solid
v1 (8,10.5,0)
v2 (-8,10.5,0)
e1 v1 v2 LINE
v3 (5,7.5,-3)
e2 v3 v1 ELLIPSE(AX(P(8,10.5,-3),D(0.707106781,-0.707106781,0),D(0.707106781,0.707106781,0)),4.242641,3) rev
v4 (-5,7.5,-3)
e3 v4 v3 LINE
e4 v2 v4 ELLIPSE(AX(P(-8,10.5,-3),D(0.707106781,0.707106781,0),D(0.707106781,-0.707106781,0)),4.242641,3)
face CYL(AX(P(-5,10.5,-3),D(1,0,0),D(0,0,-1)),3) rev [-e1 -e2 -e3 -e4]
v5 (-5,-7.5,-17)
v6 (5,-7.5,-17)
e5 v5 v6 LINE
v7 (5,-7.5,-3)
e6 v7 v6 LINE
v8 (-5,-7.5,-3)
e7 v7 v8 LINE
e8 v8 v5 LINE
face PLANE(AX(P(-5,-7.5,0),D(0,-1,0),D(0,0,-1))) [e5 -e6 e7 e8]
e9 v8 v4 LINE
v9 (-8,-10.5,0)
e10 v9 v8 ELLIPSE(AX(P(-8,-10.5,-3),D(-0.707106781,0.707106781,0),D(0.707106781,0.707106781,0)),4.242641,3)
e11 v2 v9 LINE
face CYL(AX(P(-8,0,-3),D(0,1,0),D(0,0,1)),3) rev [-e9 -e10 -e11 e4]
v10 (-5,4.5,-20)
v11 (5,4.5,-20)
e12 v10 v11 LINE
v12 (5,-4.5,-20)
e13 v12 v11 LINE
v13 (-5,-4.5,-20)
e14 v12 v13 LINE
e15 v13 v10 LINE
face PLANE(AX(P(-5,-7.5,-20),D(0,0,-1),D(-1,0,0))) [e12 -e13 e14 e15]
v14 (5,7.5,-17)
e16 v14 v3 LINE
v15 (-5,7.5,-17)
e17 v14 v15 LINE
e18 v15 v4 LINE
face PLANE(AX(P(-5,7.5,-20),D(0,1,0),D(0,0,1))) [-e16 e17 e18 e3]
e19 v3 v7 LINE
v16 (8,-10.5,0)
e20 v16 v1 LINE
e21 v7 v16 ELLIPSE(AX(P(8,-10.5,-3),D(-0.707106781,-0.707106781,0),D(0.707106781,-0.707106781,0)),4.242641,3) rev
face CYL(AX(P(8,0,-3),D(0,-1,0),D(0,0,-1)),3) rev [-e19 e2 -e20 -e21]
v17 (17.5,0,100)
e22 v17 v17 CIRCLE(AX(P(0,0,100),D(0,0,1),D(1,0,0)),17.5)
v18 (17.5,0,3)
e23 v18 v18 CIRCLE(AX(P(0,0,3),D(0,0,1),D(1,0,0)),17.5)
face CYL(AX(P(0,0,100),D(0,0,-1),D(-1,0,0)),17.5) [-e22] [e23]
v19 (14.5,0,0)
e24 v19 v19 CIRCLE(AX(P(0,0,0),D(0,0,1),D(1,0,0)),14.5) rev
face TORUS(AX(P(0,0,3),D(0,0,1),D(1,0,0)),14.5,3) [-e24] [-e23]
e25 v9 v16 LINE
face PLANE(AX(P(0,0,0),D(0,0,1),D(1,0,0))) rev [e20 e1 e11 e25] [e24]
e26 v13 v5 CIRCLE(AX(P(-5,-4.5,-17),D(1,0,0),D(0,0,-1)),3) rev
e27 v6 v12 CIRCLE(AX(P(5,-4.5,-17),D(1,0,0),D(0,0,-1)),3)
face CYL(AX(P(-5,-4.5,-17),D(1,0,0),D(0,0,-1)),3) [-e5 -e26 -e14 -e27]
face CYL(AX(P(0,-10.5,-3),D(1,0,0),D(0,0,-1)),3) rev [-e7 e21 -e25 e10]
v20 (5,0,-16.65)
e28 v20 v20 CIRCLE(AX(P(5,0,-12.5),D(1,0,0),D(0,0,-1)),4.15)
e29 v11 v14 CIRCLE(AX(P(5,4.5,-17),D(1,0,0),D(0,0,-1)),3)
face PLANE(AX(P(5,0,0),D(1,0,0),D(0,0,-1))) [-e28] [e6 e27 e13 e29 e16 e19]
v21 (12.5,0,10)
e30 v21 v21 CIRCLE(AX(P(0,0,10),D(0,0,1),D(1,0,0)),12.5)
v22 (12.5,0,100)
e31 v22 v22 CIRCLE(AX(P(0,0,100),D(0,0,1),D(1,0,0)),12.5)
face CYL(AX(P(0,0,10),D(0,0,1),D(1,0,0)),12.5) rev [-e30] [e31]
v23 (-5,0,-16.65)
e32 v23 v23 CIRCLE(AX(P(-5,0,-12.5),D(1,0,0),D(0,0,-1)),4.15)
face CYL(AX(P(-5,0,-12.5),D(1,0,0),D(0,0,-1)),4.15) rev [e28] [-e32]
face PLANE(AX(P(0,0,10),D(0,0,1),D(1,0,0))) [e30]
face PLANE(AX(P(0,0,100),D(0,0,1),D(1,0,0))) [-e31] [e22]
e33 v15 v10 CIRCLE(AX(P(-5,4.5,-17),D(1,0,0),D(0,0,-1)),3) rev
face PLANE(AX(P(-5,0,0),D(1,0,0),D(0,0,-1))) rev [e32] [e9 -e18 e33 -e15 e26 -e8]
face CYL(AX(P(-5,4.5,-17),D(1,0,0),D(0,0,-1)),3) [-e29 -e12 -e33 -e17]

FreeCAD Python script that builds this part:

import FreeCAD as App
import Part
import Sketcher
from FreeCAD import Vector
Q = App.Units.Quantity


def edges_at(feature, points):
    """Names of the edges that pass closest to the given points."""
    edges = feature.Shape.Edges
    near = lambda p: min(range(len(edges)), key=lambda i: edges[i].distToShape(Part.Vertex(*p))[0])
    return sorted({f"Edge{near(p) + 1}" for p in points})

doc = App.newDocument("Part")
body = doc.addObject("PartDesign::Body", "Body")

sketch1 = body.newObject("Sketcher::SketchObject", "Sketch")
sketch1.AttachmentSupport = (doc.getObject("XY_Plane"), [""])
sketch1.MapMode = "FlatFace"
sketch1.addGeometry(Part.Circle(Vector(0, 0, 0), Vector(0, 0, 1), 17.5), False)
sketch1.addConstraint(Sketcher.Constraint("Coincident", 0, 3, -1, 1))
sketch1.addConstraint(Sketcher.Constraint("Diameter", 0, Q("35 mm")))
pad1 = body.newObject("PartDesign::Pad", "Pad")
pad1.Profile = sketch1
pad1.Length = 100

sketch2 = body.newObject("Sketcher::SketchObject", "Sketch001")
sketch2.AttachmentSupport = (doc.getObject("XY_Plane"), [""])
sketch2.MapMode = "FlatFace"
sketch2.AttachmentOffset = App.Placement(Vector(0, 0, 100), App.Rotation())
sketch2.addGeometry(Part.Circle(Vector(0, 0, 0), Vector(0, 0, 1), 12.5), False)
sketch2.addConstraint(Sketcher.Constraint("Coincident", 0, 3, -1, 1))
sketch2.addConstraint(Sketcher.Constraint("Diameter", 0, Q("25 mm")))
pocket1 = body.newObject("PartDesign::Pocket", "Pocket")
pocket1.Profile = sketch2
pocket1.Length = 90

sketch3 = body.newObject("Sketcher::SketchObject", "Sketch002")
sketch3.AttachmentSupport = (doc.getObject("YZ_Plane"), [""])
sketch3.MapMode = "FlatFace"
sketch3.addGeometry(Part.LineSegment(Vector(7.5, 0, 0), Vector(-7.5, 0, 0)), False)
sketch3.addGeometry(Part.LineSegment(Vector(-7.5, 0, 0), Vector(-7.5, -20, 0)), False)
sketch3.addGeometry(Part.LineSegment(Vector(-7.5, -20, 0), Vector(7.5, -20, 0)), False)
sketch3.addGeometry(Part.LineSegment(Vector(7.5, -20, 0), Vector(7.5, 0, 0)), False)
sketch3.addGeometry(Part.Circle(Vector(0, -12.5, 0), Vector(0, 0, 1), 4.15), False)
sketch3.addConstraint(Sketcher.Constraint("Coincident", 0, 2, 1, 1))
sketch3.addConstraint(Sketcher.Constraint("Coincident", 1, 2, 2, 1))
sketch3.addConstraint(Sketcher.Constraint("Coincident", 2, 2, 3, 1))
sketch3.addConstraint(Sketcher.Constraint("Coincident", 3, 2, 0, 1))
sketch3.addConstraint(Sketcher.Constraint("Horizontal", 0))
sketch3.addConstraint(Sketcher.Constraint("Vertical", 1))
sketch3.addConstraint(Sketcher.Constraint("Horizontal", 2))
sketch3.addConstraint(Sketcher.Constraint("Vertical", 3))
sketch3.addConstraint(Sketcher.Constraint("Symmetric", 0, 2, 3, 2, -1, 1))
sketch3.addConstraint(Sketcher.Constraint("PointOnObject", 4, 3, -2))
sketch3.addConstraint(Sketcher.Constraint("Diameter", 4, Q("8.3 mm")))
sketch3.addConstraint(Sketcher.Constraint("DistanceX", 0, 2, 0, 1, Q("15 mm")))
sketch3.addConstraint(Sketcher.Constraint("DistanceY", 1, 2, 1, 1, Q("20 mm")))
sketch3.addConstraint(Sketcher.Constraint("DistanceY", 4, 3, -1, 1, Q("12.5 mm")))
pad2 = body.newObject("PartDesign::Pad", "Pad001")
pad2.Profile = sketch3
pad2.Type = "TwoLengths"
pad2.Length = 5
pad2.Length2 = 5
doc.recompute()

fillet = body.newObject("PartDesign::Fillet", "Fillet")
fillet.Base = (pad2, edges_at(pad2, [
    (0, 7.5, 0),
    (0, 7.5, -20),
    (0, -7.5, -20),
    (0, -7.5, 0),
    (-5, 0, 0),
    (5, 0, 0),
    (-17.5, 0, 0),
]))
fillet.Radius = 3

doc.recompute()
